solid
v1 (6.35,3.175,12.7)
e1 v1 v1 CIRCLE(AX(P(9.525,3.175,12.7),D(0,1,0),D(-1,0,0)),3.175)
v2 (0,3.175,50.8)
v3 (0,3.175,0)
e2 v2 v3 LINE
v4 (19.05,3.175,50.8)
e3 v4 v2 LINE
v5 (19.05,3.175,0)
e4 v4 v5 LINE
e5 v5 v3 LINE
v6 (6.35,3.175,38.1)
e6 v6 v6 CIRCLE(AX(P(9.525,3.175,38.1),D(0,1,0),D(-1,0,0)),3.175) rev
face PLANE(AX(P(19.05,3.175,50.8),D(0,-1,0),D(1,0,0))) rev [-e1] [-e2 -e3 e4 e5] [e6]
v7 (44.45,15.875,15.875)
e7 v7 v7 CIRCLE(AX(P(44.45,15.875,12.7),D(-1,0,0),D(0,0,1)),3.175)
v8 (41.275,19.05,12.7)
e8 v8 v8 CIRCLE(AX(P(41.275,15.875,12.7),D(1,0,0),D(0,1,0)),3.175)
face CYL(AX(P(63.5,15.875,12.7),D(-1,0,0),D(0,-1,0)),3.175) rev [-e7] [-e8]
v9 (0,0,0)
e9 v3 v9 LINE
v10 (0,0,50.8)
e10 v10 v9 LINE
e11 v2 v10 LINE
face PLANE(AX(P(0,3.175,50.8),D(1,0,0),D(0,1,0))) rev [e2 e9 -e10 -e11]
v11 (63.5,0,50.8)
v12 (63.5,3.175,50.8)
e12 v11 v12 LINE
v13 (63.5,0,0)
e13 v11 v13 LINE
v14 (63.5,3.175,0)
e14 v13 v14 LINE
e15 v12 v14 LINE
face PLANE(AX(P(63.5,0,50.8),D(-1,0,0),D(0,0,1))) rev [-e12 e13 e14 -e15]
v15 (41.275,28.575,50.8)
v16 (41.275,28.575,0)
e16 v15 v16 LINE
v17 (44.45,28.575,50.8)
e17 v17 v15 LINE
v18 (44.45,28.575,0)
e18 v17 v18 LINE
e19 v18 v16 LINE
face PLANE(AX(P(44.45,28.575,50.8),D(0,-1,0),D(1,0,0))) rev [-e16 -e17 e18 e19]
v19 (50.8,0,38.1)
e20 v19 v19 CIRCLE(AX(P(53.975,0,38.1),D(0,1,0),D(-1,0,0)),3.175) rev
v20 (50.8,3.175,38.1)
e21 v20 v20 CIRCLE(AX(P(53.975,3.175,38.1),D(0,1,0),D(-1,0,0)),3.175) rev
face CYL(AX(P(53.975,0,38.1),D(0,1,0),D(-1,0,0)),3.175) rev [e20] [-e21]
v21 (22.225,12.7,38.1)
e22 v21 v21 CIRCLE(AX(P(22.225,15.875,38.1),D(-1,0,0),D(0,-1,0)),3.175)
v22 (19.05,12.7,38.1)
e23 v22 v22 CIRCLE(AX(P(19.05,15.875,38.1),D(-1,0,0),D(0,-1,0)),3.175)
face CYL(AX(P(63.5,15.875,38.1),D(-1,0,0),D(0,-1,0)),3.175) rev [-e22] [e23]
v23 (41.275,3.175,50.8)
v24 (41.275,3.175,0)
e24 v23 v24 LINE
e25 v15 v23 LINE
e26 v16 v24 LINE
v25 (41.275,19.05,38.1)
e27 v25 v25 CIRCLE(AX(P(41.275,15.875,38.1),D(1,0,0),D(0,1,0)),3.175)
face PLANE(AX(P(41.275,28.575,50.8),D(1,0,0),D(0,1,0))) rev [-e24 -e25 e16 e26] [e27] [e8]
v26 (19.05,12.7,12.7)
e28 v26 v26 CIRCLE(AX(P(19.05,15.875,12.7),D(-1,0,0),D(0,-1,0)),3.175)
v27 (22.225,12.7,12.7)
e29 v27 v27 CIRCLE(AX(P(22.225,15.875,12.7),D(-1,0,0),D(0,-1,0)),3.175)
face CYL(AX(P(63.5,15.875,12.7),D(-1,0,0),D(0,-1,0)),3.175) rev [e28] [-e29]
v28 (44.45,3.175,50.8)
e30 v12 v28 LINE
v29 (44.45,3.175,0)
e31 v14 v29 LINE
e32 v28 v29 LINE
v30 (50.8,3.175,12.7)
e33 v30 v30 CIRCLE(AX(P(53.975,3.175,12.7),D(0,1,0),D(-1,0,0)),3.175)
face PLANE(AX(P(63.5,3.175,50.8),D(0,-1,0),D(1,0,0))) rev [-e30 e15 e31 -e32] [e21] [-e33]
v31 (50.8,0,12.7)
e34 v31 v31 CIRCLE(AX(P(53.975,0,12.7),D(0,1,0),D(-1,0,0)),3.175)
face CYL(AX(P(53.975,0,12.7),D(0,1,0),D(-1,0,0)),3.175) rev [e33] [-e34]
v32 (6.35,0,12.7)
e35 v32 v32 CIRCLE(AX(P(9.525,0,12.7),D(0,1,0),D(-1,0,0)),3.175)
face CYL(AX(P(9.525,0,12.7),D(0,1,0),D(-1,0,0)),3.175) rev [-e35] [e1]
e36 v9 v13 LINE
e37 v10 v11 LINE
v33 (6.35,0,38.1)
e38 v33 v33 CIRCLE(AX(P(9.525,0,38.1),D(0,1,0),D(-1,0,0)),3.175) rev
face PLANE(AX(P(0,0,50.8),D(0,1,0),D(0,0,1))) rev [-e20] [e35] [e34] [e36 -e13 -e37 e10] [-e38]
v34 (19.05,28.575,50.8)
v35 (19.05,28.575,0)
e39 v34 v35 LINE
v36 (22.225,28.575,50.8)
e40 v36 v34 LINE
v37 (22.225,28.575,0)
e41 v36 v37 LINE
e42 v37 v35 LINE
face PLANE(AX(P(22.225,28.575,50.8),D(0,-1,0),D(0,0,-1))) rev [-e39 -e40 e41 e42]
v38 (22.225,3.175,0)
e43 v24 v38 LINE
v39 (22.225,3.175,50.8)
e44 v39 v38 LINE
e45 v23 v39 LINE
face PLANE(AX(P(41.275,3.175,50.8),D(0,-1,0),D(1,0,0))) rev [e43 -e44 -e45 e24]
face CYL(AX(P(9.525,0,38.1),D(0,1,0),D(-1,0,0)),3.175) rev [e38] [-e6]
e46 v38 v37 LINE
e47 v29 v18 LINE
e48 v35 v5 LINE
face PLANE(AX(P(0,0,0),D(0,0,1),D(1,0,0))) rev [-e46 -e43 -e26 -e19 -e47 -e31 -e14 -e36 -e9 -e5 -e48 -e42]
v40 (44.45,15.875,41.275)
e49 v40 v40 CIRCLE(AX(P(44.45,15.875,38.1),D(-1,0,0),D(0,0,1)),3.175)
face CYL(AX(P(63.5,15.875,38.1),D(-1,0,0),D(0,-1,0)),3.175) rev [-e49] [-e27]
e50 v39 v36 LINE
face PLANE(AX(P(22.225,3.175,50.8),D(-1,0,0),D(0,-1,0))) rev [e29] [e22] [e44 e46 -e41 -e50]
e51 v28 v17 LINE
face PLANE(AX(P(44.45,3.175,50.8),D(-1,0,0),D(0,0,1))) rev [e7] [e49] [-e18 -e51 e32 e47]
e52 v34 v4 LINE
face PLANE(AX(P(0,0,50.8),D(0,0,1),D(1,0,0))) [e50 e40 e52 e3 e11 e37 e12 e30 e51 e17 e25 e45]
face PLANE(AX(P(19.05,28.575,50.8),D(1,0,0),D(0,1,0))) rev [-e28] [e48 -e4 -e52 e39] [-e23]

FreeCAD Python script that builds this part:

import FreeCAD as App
import Part
import Sketcher

V = App.Vector
Q = App.Units.Quantity


def add_polygon(sketch, points):
    """Adds a closed chain of lines whose ends are joined by coincident constraints."""
    first, n = sketch.GeometryCount, len(points)
    for a, b in zip(points, points[1:] + points[:1]):
        sketch.addGeometry(Part.LineSegment(App.Vector(*a, 0), App.Vector(*b, 0)), False)
    for i in range(n):
        sketch.addConstraint(Sketcher.Constraint("Coincident", first + i, 2, first + (i + 1) % n, 1))

doc = App.newDocument("Part")
params = doc.addObject("Spreadsheet::Sheet", "Params")
for row, (alias, value) in enumerate([
    ("sketch1_height", "1 in"),
    ("sketch1_width", "2.5 in"),
    ("pad1_length", "2 in"),
    ("sketch2_diameter", "0.25 in"),
    ("sketch3_diameter", "0.25 in"),
], start=1):
    params.set(f"A{row}", alias)
    params.set(f"B{row}", "=" + value)
    params.setAlias(f"B{row}", alias)

body = doc.addObject("PartDesign::Body", "Body")

# Sketch on XY plane
sketch1 = body.newObject("Sketcher::SketchObject", "Sketch")
sketch1.AttachmentSupport = (doc.getObject("XY_Plane"), [""])
sketch1.MapMode = "FlatFace"
add_polygon(sketch1, [(0, 0), (63.5, 0), (63.5, 3.175), (44.45, 3.175), (44.45, 28.575), (41.275, 28.575), (41.275, 3.175), (22.225, 3.175), (22.225, 28.575), (19.05, 28.575), (19.05, 3.175), (0, 3.175)])  # lines 0-11
sketch1.addConstraint(Sketcher.Constraint("Horizontal", 0))
sketch1.addConstraint(Sketcher.Constraint("Vertical", 1))
sketch1.addConstraint(Sketcher.Constraint("Horizontal", 2))
sketch1.addConstraint(Sketcher.Constraint("Vertical", 3))
sketch1.addConstraint(Sketcher.Constraint("Horizontal", 4))
sketch1.addConstraint(Sketcher.Constraint("Vertical", 5))
sketch1.addConstraint(Sketcher.Constraint("Horizontal", 6))
sketch1.addConstraint(Sketcher.Constraint("Vertical", 7))
sketch1.addConstraint(Sketcher.Constraint("Horizontal", 8))
sketch1.addConstraint(Sketcher.Constraint("Vertical", 9))
sketch1.addConstraint(Sketcher.Constraint("Horizontal", 10))
sketch1.addConstraint(Sketcher.Constraint("Vertical", 11))
sketch1.addConstraint(Sketcher.Constraint("Coincident", 11, 2, -1, 1))
sketch1.addConstraint(Sketcher.Constraint("Horizontal", 2, 2, 5, 2))
sketch1.addConstraint(Sketcher.Constraint("Horizontal", 4, 2, 7, 2))
sketch1.addConstraint(Sketcher.Constraint("Horizontal", 6, 2, 9, 2))
sketch1.addConstraint(Sketcher.Constraint("Equal", 2, 6))
sketch1.addConstraint(Sketcher.Constraint("Equal", 4, 8))
sketch1.addConstraint(Sketcher.Constraint("Equal", 6, 10))
sketch1.addConstraint(Sketcher.Constraint("Equal", 8, 1))
sketch1.addConstraint(Sketcher.Constraint("DistanceY", 3, 1, 3, 2, Q("1 in")))
sketch1.addConstraint(Sketcher.Constraint("DistanceX", 0, 1, 0, 2, Q("2.5 in")))
sketch1.addConstraint(Sketcher.Constraint("DistanceX", 8, 2, 3, 2, Q("1 in")))
sketch1.setExpression("Constraints[32]", "Params.sketch1_height")
sketch1.setExpression("Constraints[33]", "Params.sketch1_width")
pad1 = body.newObject("PartDesign::Pad", "Pad")
pad1.Profile = sketch1
pad1.setExpression("Length", "Params.pad1_length")

# Sketch on YZ plane
sketch2 = body.newObject("Sketcher::SketchObject", "Sketch001")
sketch2.AttachmentSupport = (doc.getObject("YZ_Plane"), [""])
sketch2.MapMode = "FlatFace"
sketch2.AttachmentOffset = App.Placement(V(0, 0, 0.75 * 25.4), App.Rotation())
sketch2.addGeometry(Part.Circle(V(15.875, 12.7, 0), V(0, 0, 1), 3.175), False)
sketch2.addGeometry(Part.Circle(V(15.875, 38.1, 0), V(0, 0, 1), 3.175), False)
sketch2.addConstraint(Sketcher.Constraint("Equal", 0, 1))
sketch2.addConstraint(Sketcher.Constraint("Vertical", 0, 3, 1, 3))
sketch2.addConstraint(Sketcher.Constraint("Diameter", 0, Q("0.25 in")))
sketch2.addConstraint(Sketcher.Constraint("DistanceY", 0, 3, 1, 3, Q("1 in")))
sketch2.addConstraint(Sketcher.Constraint("DistanceY", -1, 1, 0, 3, Q("0.5 in")))
sketch2.addConstraint(Sketcher.Constraint("DistanceX", -1, 1, 0, 3, Q("0.625 in")))
sketch2.setExpression("Constraints[2]", "Params.sketch2_diameter")
pocket1 = body.newObject("PartDesign::Pocket", "Pocket")
pocket1.Profile = sketch2
pocket1.Type = "ThroughAll"
pocket1.Reversed = True

# Sketch on XZ plane
sketch3 = body.newObject("Sketcher::SketchObject", "Sketch002")
sketch3.AttachmentSupport = (doc.getObject("XZ_Plane"), [""])
sketch3.MapMode = "FlatFace"
sketch3.AttachmentOffset = App.Placement(V(0, 0, -0.125 * 25.4), App.Rotation())
sketch3.addGeometry(Part.Circle(V(9.525, 38.1, 0), V(0, 0, 1), 3.175), False)
sketch3.addGeometry(Part.Circle(V(9.525, 12.7, 0), V(0, 0, 1), 3.175), False)
sketch3.addGeometry(Part.Circle(V(53.975, 12.7, 0), V(0, 0, 1), 3.175), False)
sketch3.addGeometry(Part.Circle(V(53.975, 38.1, 0), V(0, 0, 1), 3.175), False)
sketch3.addConstraint(Sketcher.Constraint("Equal", 0, 1))
sketch3.addConstraint(Sketcher.Constraint("Equal", 1, 2))
sketch3.addConstraint(Sketcher.Constraint("Equal", 2, 3))
sketch3.addConstraint(Sketcher.Constraint("Horizontal", 1, 3, 2, 3))
sketch3.addConstraint(Sketcher.Constraint("Horizontal", 0, 3, 3, 3))
sketch3.addConstraint(Sketcher.Constraint("Vertical", 0, 3, 1, 3))
sketch3.addConstraint(Sketcher.Constraint("Vertical", 2, 3, 3, 3))
sketch3.addConstraint(Sketcher.Constraint("Diameter", 0, Q("0.25 in")))
sketch3.addConstraint(Sketcher.Constraint("DistanceY", 1, 3, 0, 3, Q("1 in")))
sketch3.addConstraint(Sketcher.Constraint("DistanceY", -1, 1, 0, 3, Q("1.5 in")))
sketch3.addConstraint(Sketcher.Constraint("DistanceX", 1, 3, 2, 3, Q("1.75 in")))
sketch3.addConstraint(Sketcher.Constraint("DistanceX", -1, 1, 0, 3, Q("0.375 in")))
sketch3.setExpression("Constraints[7]", "Params.sketch3_diameter")
pocket2 = body.newObject("PartDesign::Pocket", "Pocket001")
pocket2.Profile = sketch3
pocket2.Type = "ThroughAll"
pocket2.Reversed = True

doc.recompute()
